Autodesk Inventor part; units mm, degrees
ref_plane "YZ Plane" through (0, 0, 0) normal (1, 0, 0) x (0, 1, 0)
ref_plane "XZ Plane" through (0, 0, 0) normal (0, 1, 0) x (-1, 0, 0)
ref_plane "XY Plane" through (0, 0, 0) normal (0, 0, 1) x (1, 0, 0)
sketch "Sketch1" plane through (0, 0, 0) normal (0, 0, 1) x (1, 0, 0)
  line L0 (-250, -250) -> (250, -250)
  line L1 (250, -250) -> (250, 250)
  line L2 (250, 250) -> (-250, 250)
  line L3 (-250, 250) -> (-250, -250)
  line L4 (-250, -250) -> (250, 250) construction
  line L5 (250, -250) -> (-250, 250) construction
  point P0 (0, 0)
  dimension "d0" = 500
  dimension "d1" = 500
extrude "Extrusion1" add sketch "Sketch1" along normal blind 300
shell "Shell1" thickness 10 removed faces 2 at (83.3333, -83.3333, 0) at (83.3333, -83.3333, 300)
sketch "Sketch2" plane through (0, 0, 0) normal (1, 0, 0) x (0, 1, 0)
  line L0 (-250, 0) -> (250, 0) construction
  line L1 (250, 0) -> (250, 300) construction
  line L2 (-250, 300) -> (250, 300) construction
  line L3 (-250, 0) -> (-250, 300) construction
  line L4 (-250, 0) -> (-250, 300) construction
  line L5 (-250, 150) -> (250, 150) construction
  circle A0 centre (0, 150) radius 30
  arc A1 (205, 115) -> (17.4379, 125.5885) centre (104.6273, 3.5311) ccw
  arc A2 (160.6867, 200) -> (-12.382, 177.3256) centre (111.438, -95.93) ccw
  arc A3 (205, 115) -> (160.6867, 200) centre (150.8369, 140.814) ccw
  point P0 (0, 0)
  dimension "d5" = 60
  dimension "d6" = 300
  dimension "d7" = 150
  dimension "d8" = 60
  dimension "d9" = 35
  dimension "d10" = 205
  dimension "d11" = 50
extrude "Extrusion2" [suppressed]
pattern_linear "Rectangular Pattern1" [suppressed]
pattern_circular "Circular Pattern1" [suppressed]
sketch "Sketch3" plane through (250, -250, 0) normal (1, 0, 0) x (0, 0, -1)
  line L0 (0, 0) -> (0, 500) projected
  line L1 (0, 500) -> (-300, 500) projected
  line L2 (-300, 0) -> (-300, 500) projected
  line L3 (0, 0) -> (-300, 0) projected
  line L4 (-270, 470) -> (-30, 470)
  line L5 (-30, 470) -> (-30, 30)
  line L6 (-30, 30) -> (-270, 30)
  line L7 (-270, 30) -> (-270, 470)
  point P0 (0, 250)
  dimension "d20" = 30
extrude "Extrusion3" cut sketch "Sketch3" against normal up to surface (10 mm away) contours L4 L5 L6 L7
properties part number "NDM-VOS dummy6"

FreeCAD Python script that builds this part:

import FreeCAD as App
import Part
import Sketcher

V = App.Vector
Q = App.Units.Quantity


def faces_at(feature, points):
    """Names of the faces that lie closest to the given points."""
    faces = feature.Shape.Faces
    near = lambda p: min(range(len(faces)), key=lambda i: faces[i].distToShape(Part.Vertex(*p))[0])
    return sorted({f"Face{near(p) + 1}" for p in points})

doc = App.newDocument("Part")
body = doc.addObject("PartDesign::Body", "Body")

# Sketch on XY plane
sketch1 = body.newObject("Sketcher::SketchObject", "Sketch")
sketch1.AttachmentSupport = (doc.getObject("XY_Plane"), [""])
sketch1.MapMode = "FlatFace"
sketch1.addGeometry(Part.LineSegment(V(-250, 250, 0), V(-250, -250, 0)), False)
sketch1.addGeometry(Part.LineSegment(V(-250, -250, 0), V(250, -250, 0)), False)
sketch1.addGeometry(Part.LineSegment(V(250, -250, 0), V(250, 250, 0)), False)
sketch1.addGeometry(Part.LineSegment(V(250, 250, 0), V(-250, 250, 0)), False)
sketch1.addConstraint(Sketcher.Constraint("Coincident", 0, 2, 1, 1))
sketch1.addConstraint(Sketcher.Constraint("Coincident", 1, 2, 2, 1))
sketch1.addConstraint(Sketcher.Constraint("Coincident", 2, 2, 3, 1))
sketch1.addConstraint(Sketcher.Constraint("Coincident", 3, 2, 0, 1))
sketch1.addConstraint(Sketcher.Constraint("Vertical", 0))
sketch1.addConstraint(Sketcher.Constraint("Horizontal", 1))
sketch1.addConstraint(Sketcher.Constraint("Vertical", 2))
sketch1.addConstraint(Sketcher.Constraint("Horizontal", 3))
sketch1.addConstraint(Sketcher.Constraint("Symmetric", 0, 2, 2, 2, -1, 1))
sketch1.addConstraint(Sketcher.Constraint("Equal", 3, 0))
sketch1.addConstraint(Sketcher.Constraint("DistanceX", 1, 1, 1, 2, Q("500 mm")))
pad1 = body.newObject("PartDesign::Pad", "Pad")
pad1.Profile = sketch1
pad1.Length = 300
doc.recompute()

thickness = body.newObject("PartDesign::Thickness", "Thickness")
thickness.Base = (pad1, faces_at(pad1, [(83.333, -83.333, 0), (83.333, -83.333, 300)]))
thickness.Value = 10
thickness.Reversed = True
thickness.Join = "Intersection"

# Sketch on YZ plane
sketch2 = body.newObject("Sketcher::SketchObject", "Sketch001")
sketch2.AttachmentSupport = (doc.getObject("YZ_Plane"), [""])
sketch2.MapMode = "FlatFace"
sketch2.AttachmentOffset = App.Placement(V(0, 0, 250), App.Rotation())
sketch2.addGeometry(Part.LineSegment(V(220, 30, 0), V(220, 270, 0)), False)
sketch2.addGeometry(Part.LineSegment(V(220, 270, 0), V(-220, 270, 0)), False)
sketch2.addGeometry(Part.LineSegment(V(-220, 270, 0), V(-220, 30, 0)), False)
sketch2.addGeometry(Part.LineSegment(V(-220, 30, 0), V(220, 30, 0)), False)
sketch2.addConstraint(Sketcher.Constraint("Coincident", 0, 2, 1, 1))
sketch2.addConstraint(Sketcher.Constraint("Coincident", 1, 2, 2, 1))
sketch2.addConstraint(Sketcher.Constraint("Coincident", 2, 2, 3, 1))
sketch2.addConstraint(Sketcher.Constraint("Coincident", 3, 2, 0, 1))
sketch2.addConstraint(Sketcher.Constraint("Vertical", 0))
sketch2.addConstraint(Sketcher.Constraint("Horizontal", 1))
sketch2.addConstraint(Sketcher.Constraint("Vertical", 2))
sketch2.addConstraint(Sketcher.Constraint("Horizontal", 3))
sketch2.addConstraint(Sketcher.Constraint("DistanceY", -1, 1, 2, 2, Q("30 mm")))
sketch2.addConstraint(Sketcher.Constraint("DistanceX", 1, 2, 1, 1, Q("440 mm")))
sketch2.addConstraint(Sketcher.Constraint("DistanceY", 0, 1, 0, 2, Q("240 mm")))
sketch2.addConstraint(Sketcher.Constraint("DistanceX", -1, 1, 0, 2, Q("220 mm")))
pocket1 = body.newObject("PartDesign::Pocket", "Pocket")
pocket1.Profile = sketch2
pocket1.Length = 10

doc.recompute()
